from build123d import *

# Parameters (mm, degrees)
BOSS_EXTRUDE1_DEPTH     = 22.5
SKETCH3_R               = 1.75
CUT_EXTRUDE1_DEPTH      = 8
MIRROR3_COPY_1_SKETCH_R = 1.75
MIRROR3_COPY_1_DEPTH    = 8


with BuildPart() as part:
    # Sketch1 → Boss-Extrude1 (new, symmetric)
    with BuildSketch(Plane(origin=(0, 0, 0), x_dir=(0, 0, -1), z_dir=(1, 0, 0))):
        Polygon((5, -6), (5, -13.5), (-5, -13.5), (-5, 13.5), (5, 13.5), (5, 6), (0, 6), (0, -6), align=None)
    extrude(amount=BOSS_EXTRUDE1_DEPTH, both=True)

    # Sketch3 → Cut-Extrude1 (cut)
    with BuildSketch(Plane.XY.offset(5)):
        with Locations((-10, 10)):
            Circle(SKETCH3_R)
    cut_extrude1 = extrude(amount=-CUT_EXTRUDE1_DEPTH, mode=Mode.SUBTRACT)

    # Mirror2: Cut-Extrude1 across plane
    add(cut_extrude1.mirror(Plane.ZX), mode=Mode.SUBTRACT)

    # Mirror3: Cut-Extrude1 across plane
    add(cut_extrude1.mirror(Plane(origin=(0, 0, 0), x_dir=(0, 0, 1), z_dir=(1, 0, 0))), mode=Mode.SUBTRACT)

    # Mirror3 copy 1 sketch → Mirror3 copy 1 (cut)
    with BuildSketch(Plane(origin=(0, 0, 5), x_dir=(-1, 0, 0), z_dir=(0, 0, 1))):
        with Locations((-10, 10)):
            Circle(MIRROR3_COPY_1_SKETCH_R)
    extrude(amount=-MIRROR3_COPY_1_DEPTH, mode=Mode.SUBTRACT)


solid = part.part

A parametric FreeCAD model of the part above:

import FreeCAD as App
import Part
import Sketcher
from FreeCAD import Vector
Q = App.Units.Quantity

doc = App.newDocument("Part")
body = doc.addObject("PartDesign::Body", "Body")

# Sketch on YZ plane
sketch1 = doc.addObject("Sketcher::SketchObject", "Sketch")
body.addObject(sketch1)
sketch1.AttachmentSupport = (doc.YZ_Plane, [""])
sketch1.MapMode = "FlatFace"
sketch1.addGeometry([
    Part.LineSegment(Vector(-14, -5, 0), Vector(-6, -5, 0)),  # 0
    Part.LineSegment(Vector(-6, -5, 0), Vector(-6, 0, 0)),  # 1
    Part.LineSegment(Vector(-6, 0, 0), Vector(6, 0, 0)),  # 2
    Part.LineSegment(Vector(6, 0, 0), Vector(6, -5, 0)),  # 3
    Part.LineSegment(Vector(6, -5, 0), Vector(14, -5, 0)),  # 4
    Part.LineSegment(Vector(14, -5, 0), Vector(14, 5, 0)),  # 5
    Part.LineSegment(Vector(14, 5, 0), Vector(-14, 5, 0)),  # 6
    Part.LineSegment(Vector(-14, 5, 0), Vector(-14, -5, 0)),  # 7
], False)
sketch1.addConstraint([
    Sketcher.Constraint("Coincident", 0, 2, 1, 1),
    Sketcher.Constraint("Coincident", 1, 2, 2, 1),
    Sketcher.Constraint("Coincident", 2, 2, 3, 1),
    Sketcher.Constraint("Coincident", 3, 2, 4, 1),
    Sketcher.Constraint("Coincident", 4, 2, 5, 1),
    Sketcher.Constraint("Coincident", 5, 2, 6, 1),
    Sketcher.Constraint("Coincident", 6, 2, 7, 1),
    Sketcher.Constraint("Coincident", 7, 2, 0, 1),
    Sketcher.Constraint("Horizontal", 0),
    Sketcher.Constraint("Vertical", 1),
    Sketcher.Constraint("Horizontal", 2),
    Sketcher.Constraint("Vertical", 3),
    Sketcher.Constraint("Horizontal", 4),
    Sketcher.Constraint("Vertical", 5),
    Sketcher.Constraint("Horizontal", 6),
    Sketcher.Constraint("Vertical", 7),
    Sketcher.Constraint("Symmetric", 1, 2, 2, 2, -1, 1),
    Sketcher.Constraint("Symmetric", 4, 2, 6, 2, -1, 1),
    Sketcher.Constraint("Horizontal", 0, 2, 3, 2),
    Sketcher.Constraint("DistanceX", 2, 1, 2, 2, Q("12 mm")),
    Sketcher.Constraint("DistanceX", 6, 2, 6, 1, Q("27 mm")),
    Sketcher.Constraint("DistanceY", 1, 1, 1, 2, Q("5 mm")),
])
pad1 = doc.addObject("PartDesign::Pad", "Pad")
body.addObject(pad1)
pad1.Profile = sketch1
pad1.Length = 45
pad1.Midplane = True

# Sketch on XY plane
sketch2 = doc.addObject("Sketcher::SketchObject", "Sketch001")
body.addObject(sketch2)
sketch2.AttachmentSupport = (doc.XY_Plane, [""])
sketch2.MapMode = "FlatFace"
sketch2.AttachmentOffset = App.Placement(Vector(0, 0, 5), App.Rotation())
sketch2.addGeometry(Part.Circle(Vector(-10, 10, 0), Vector(0, 0, 1), 1.8), False)
sketch2.addConstraint([
    Sketcher.Constraint("Diameter", 0, Q("3.5 mm")),
    Sketcher.Constraint("DistanceX", 0, 3, -1, 1, Q("10 mm")),
    Sketcher.Constraint("DistanceY", -1, 1, 0, 3, Q("10 mm")),
])
pocket1 = doc.addObject("PartDesign::Pocket", "Pocket")
body.addObject(pocket1)
pocket1.Profile = sketch2
pocket1.Length = 8
doc.recompute()

mirrored = doc.addObject("PartDesign::Mirrored", "Mirrored")
body.addObject(mirrored)
mirrored.Originals = [pocket1]
mirrored.MirrorPlane = (doc.XZ_Plane, [""])
body.Tip = mirrored
doc.recompute()

mirrored2 = doc.addObject("PartDesign::Mirrored", "Mirrored001")
body.addObject(mirrored2)
mirrored2.Originals = [pocket1]
mirrored2.MirrorPlane = (doc.YZ_Plane, [""])
body.Tip = mirrored2

# Sketch on XY plane
sketch3 = doc.addObject("Sketcher::SketchObject", "Sketch002")
body.addObject(sketch3)
sketch3.AttachmentSupport = (doc.XY_Plane, [""])
sketch3.MapMode = "FlatFace"
sketch3.AttachmentOffset = App.Placement(Vector(0, 0, 5), App.Rotation())
sketch3.addGeometry(Part.Circle(Vector(10, -10, 0), Vector(0, 0, 1), 1.8), False)
sketch3.addConstraint([
    Sketcher.Constraint("Diameter", 0, Q("3.5 mm")),
    Sketcher.Constraint("DistanceX", -1, 1, 0, 3, Q("10 mm")),
    Sketcher.Constraint("DistanceY", 0, 3, -1, 1, Q("10 mm")),
])
pocket2 = doc.addObject("PartDesign::Pocket", "Pocket001")
body.addObject(pocket2)
pocket2.Profile = sketch3
pocket2.Length = 8

doc.recompute()
